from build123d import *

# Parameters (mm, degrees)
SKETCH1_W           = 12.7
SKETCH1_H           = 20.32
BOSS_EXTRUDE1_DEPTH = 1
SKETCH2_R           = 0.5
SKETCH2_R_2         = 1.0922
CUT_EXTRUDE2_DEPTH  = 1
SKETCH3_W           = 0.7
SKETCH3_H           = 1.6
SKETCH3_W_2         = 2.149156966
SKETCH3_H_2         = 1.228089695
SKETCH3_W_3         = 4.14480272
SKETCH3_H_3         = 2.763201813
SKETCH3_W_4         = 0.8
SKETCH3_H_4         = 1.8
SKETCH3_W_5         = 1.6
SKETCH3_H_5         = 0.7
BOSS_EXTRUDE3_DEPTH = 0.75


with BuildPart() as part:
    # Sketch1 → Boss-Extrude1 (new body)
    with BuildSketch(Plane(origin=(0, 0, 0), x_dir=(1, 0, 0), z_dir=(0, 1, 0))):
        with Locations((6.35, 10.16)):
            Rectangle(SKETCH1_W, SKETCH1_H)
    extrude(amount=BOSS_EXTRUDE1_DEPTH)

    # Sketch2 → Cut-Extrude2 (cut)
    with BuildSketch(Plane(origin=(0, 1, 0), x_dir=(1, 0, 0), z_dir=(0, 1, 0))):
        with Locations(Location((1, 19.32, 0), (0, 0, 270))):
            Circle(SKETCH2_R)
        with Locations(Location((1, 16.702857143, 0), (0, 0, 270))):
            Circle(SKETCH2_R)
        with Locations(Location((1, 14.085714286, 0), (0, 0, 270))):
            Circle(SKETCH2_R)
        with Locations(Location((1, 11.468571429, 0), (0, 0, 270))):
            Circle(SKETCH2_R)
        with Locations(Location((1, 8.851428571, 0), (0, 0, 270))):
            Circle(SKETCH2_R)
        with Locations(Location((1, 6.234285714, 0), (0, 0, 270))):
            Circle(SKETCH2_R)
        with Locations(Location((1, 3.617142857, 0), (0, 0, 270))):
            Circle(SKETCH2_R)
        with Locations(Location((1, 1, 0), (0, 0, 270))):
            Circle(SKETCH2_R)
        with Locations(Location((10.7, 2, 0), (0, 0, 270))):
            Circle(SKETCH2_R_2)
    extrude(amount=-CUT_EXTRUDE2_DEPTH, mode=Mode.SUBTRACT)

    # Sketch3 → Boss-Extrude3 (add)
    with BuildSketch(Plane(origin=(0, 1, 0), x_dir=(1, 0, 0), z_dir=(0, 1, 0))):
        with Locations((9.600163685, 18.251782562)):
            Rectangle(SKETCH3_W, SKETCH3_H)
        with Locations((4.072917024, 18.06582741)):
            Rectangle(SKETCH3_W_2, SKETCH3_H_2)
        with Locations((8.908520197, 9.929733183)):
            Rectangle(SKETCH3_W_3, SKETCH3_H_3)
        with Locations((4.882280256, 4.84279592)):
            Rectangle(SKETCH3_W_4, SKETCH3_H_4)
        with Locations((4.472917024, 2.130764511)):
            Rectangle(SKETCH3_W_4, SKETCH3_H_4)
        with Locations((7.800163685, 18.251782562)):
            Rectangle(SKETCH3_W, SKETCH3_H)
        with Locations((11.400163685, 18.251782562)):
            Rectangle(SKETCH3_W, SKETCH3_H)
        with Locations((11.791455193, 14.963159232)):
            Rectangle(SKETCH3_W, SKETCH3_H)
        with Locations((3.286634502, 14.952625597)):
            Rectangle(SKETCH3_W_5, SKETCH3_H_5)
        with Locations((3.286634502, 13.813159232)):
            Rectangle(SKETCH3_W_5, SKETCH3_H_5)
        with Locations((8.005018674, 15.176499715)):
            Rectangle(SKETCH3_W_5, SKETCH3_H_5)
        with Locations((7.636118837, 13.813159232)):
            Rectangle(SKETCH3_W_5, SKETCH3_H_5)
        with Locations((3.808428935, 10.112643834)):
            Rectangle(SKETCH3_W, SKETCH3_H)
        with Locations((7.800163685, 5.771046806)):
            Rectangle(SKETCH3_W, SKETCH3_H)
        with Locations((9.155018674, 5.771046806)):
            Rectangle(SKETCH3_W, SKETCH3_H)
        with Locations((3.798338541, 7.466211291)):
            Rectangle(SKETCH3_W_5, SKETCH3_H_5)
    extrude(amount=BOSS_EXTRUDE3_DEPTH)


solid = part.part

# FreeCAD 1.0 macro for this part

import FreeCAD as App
import Part
import Sketcher
from FreeCAD import Vector

doc = App.newDocument("Part")
body = doc.addObject("PartDesign::Body", "Body")

# Sketch on XZ plane
sketch1 = doc.addObject("Sketcher::SketchObject", "Sketch")
body.addObject(sketch1)
sketch1.AttachmentSupport = (doc.XZ_Plane, [""])
sketch1.MapMode = "FlatFace"
sketch1.addGeometry([
    Part.LineSegment(Vector(0, -20.32, 0), Vector(0, 0, 0)),
    Part.LineSegment(Vector(0, 0, 0), Vector(12.7, 0, 0)),
    Part.LineSegment(Vector(12.7, 0, 0), Vector(12.7, -20.32, 0)),
    Part.LineSegment(Vector(12.7, -20.32, 0), Vector(0, -20.32, 0)),
], False)
sketch1.addConstraint([
    Sketcher.Constraint("Coincident", 0, 2, 1, 1),
    Sketcher.Constraint("Coincident", 1, 2, 2, 1),
    Sketcher.Constraint("Coincident", 2, 2, 3, 1),
    Sketcher.Constraint("Coincident", 3, 2, 0, 1),
    Sketcher.Constraint("Vertical", 0),
    Sketcher.Constraint("Horizontal", 1),
    Sketcher.Constraint("Vertical", 2),
    Sketcher.Constraint("Horizontal", 3),
    Sketcher.Constraint("Coincident", 0, 2, -1, 1),
    Sketcher.Constraint("DistanceX", 1, 1, 1, 2, 12.7),
    Sketcher.Constraint("DistanceY", 0, 1, 0, 2, 20.32),
])
pad1 = doc.addObject("PartDesign::Pad", "Pad")
body.addObject(pad1)
pad1.Profile = sketch1
pad1.Length = 1
pad1.Reversed = True

# Sketch on XZ plane
sketch2 = doc.addObject("Sketcher::SketchObject", "Sketch001")
body.addObject(sketch2)
sketch2.AttachmentSupport = (doc.XZ_Plane, [""])
sketch2.MapMode = "FlatFace"
sketch2.AttachmentOffset = App.Placement(Vector(0, 0, -1), App.Rotation())
sketch2.addGeometry([
    Part.Circle(Vector(1, -19.32, 0), Vector(0, 0, 1), 0.5),  # 0
    Part.Circle(Vector(1, -16.702857, 0), Vector(0, 0, 1), 0.5),  # 1
    Part.Circle(Vector(1, -14.085714, 0), Vector(0, 0, 1), 0.5),  # 2
    Part.Circle(Vector(1, -11.468571, 0), Vector(0, 0, 1), 0.5),  # 3
    Part.Circle(Vector(1, -8.851429, 0), Vector(0, 0, 1), 0.5),  # 4
    Part.Circle(Vector(1, -6.234286, 0), Vector(0, 0, 1), 0.5),  # 5
    Part.Circle(Vector(1, -3.617143, 0), Vector(0, 0, 1), 0.5),  # 6
    Part.Circle(Vector(1, -1, 0), Vector(0, 0, 1), 0.5),  # 7
    Part.Circle(Vector(10.7, -2, 0), Vector(0, 0, 1), 1.0922),  # 8
], False)
sketch2.addConstraint([
    Sketcher.Constraint("Equal", 0, 1),
    Sketcher.Constraint("Equal", 1, 2),
    Sketcher.Constraint("Equal", 2, 3),
    Sketcher.Constraint("Equal", 3, 4),
    Sketcher.Constraint("Equal", 4, 5),
    Sketcher.Constraint("Equal", 5, 6),
    Sketcher.Constraint("Equal", 6, 7),
    Sketcher.Constraint("Vertical", 0, 3, 1, 3),
    Sketcher.Constraint("Vertical", 1, 3, 2, 3),
    Sketcher.Constraint("Vertical", 2, 3, 3, 3),
    Sketcher.Constraint("Vertical", 3, 3, 4, 3),
    Sketcher.Constraint("Vertical", 4, 3, 5, 3),
    Sketcher.Constraint("Vertical", 5, 3, 6, 3),
    Sketcher.Constraint("Vertical", 6, 3, 7, 3),
    Sketcher.Constraint("Diameter", 0, 1.0),
    Sketcher.Constraint("DistanceX", -1, 1, 0, 3, 1.0),
    Sketcher.Constraint("DistanceY", 7, 3, -1, 1, 1.0),
    Sketcher.Constraint("DistanceY", 8, 3, -1, 1, 2.0),
    Sketcher.Constraint("Diameter", 8, 2.1844),
    Sketcher.Constraint("DistanceX", -1, 1, 8, 3, 10.7),
    Sketcher.Constraint("DistanceY", 0, 3, -1, 1, 19.32),
    Sketcher.Constraint("DistanceY", 3, 3, -1, 1, 11.468571),
    Sketcher.Constraint("DistanceY", 4, 3, -1, 1, 8.851429),
    Sketcher.Constraint("DistanceY", 1, 3, 4, 3, 7.851429),
    Sketcher.Constraint("DistanceY", 2, 3, 5, 3, 7.851429),
    Sketcher.Constraint("DistanceY", 1, 3, 5, 3, 10.468571),
    Sketcher.Constraint("DistanceY", 3, 3, 6, 3, 7.851429),
])
pocket1 = doc.addObject("PartDesign::Pocket", "Pocket")
body.addObject(pocket1)
pocket1.Profile = sketch2
pocket1.Length = 1
pocket1.Reversed = True

# Sketch on XZ plane
sketch3 = doc.addObject("Sketcher::SketchObject", "Sketch002")
body.addObject(sketch3)
sketch3.AttachmentSupport = (doc.XZ_Plane, [""])
sketch3.MapMode = "FlatFace"
sketch3.AttachmentOffset = App.Placement(Vector(0, 0, -1), App.Rotation())
sketch3.addGeometry([
    Part.LineSegment(Vector(9.250164, -19.051783, 0), Vector(9.250164, -17.451783, 0)),  # 0
    Part.LineSegment(Vector(9.250164, -17.451783, 0), Vector(9.950164, -17.451783, 0)),  # 1
    Part.LineSegment(Vector(9.950164, -17.451783, 0), Vector(9.950164, -19.051783, 0)),  # 2
    Part.LineSegment(Vector(9.950164, -19.051783, 0), Vector(9.250164, -19.051783, 0)),  # 3
    Part.LineSegment(Vector(2.998339, -18.679872, 0), Vector(2.998339, -17.451783, 0)),  # 4
    Part.LineSegment(Vector(2.998339, -17.451783, 0), Vector(5.147496, -17.451783, 0)),  # 5
    Part.LineSegment(Vector(5.147496, -17.451783, 0), Vector(5.147496, -18.679872, 0)),  # 6
    Part.LineSegment(Vector(5.147496, -18.679872, 0), Vector(2.998339, -18.679872, 0)),  # 7
    Part.LineSegment(Vector(6.836119, -11.311334, 0), Vector(6.836119, -8.548132, 0)),  # 8
    Part.LineSegment(Vector(6.836119, -8.548132, 0), Vector(10.980922, -8.548132, 0)),  # 9
    Part.LineSegment(Vector(10.980922, -8.548132, 0), Vector(10.980922, -11.311334, 0)),  # 10
    Part.LineSegment(Vector(10.980922, -11.311334, 0), Vector(6.836119, -11.311334, 0)),  # 11
    Part.LineSegment(Vector(4.48228, -5.742796, 0), Vector(4.48228, -3.942796, 0)),  # 12
    Part.LineSegment(Vector(4.48228, -3.942796, 0), Vector(5.28228, -3.942796, 0)),  # 13
    Part.LineSegment(Vector(5.28228, -3.942796, 0), Vector(5.28228, -5.742796, 0)),  # 14
    Part.LineSegment(Vector(5.28228, -5.742796, 0), Vector(4.48228, -5.742796, 0)),  # 15
    Part.LineSegment(Vector(4.072917, -3.030765, 0), Vector(4.072917, -1.230765, 0)),  # 16
    Part.LineSegment(Vector(4.072917, -1.230765, 0), Vector(4.872917, -1.230765, 0)),  # 17
    Part.LineSegment(Vector(4.872917, -1.230765, 0), Vector(4.872917, -3.030765, 0)),  # 18
    Part.LineSegment(Vector(4.872917, -3.030765, 0), Vector(4.072917, -3.030765, 0)),  # 19
    Part.LineSegment(Vector(7.450164, -19.051783, 0), Vector(7.450164, -17.451783, 0)),  # 20
    Part.LineSegment(Vector(7.450164, -17.451783, 0), Vector(8.150164, -17.451783, 0)),  # 21
    Part.LineSegment(Vector(8.150164, -17.451783, 0), Vector(8.150164, -19.051783, 0)),  # 22
    Part.LineSegment(Vector(8.150164, -19.051783, 0), Vector(7.450164, -19.051783, 0)),  # 23
    Part.LineSegment(Vector(11.050164, -19.051783, 0), Vector(11.050164, -17.451783, 0)),  # 24
    Part.LineSegment(Vector(11.050164, -17.451783, 0), Vector(11.750164, -17.451783, 0)),  # 25
    Part.LineSegment(Vector(11.750164, -17.451783, 0), Vector(11.750164, -19.051783, 0)),  # 26
    Part.LineSegment(Vector(11.750164, -19.051783, 0), Vector(11.050164, -19.051783, 0)),  # 27
    Part.LineSegment(Vector(11.441455, -15.763159, 0), Vector(11.441455, -14.163159, 0)),  # 28
    Part.LineSegment(Vector(11.441455, -14.163159, 0), Vector(12.141455, -14.163159, 0)),  # 29
    Part.LineSegment(Vector(12.141455, -14.163159, 0), Vector(12.141455, -15.763159, 0)),  # 30
    Part.LineSegment(Vector(12.141455, -15.763159, 0), Vector(11.441455, -15.763159, 0)),  # 31
    Part.LineSegment(Vector(2.486635, -15.302626, 0), Vector(2.486635, -14.602626, 0)),  # 32
    Part.LineSegment(Vector(2.486635, -14.602626, 0), Vector(4.086635, -14.602626, 0)),  # 33
    Part.LineSegment(Vector(4.086635, -14.602626, 0), Vector(4.086635, -15.302626, 0)),  # 34
    Part.LineSegment(Vector(4.086635, -15.302626, 0), Vector(2.486635, -15.302626, 0)),  # 35
    Part.LineSegment(Vector(2.486635, -14.163159, 0), Vector(2.486635, -13.463159, 0)),  # 36
    Part.LineSegment(Vector(2.486635, -13.463159, 0), Vector(4.086635, -13.463159, 0)),  # 37
    Part.LineSegment(Vector(4.086635, -13.463159, 0), Vector(4.086635, -14.163159, 0)),  # 38
    Part.LineSegment(Vector(4.086635, -14.163159, 0), Vector(2.486635, -14.163159, 0)),  # 39
    Part.LineSegment(Vector(7.205019, -15.5265, 0), Vector(7.205019, -14.8265, 0)),  # 40
    Part.LineSegment(Vector(7.205019, -14.8265, 0), Vector(8.805019, -14.8265, 0)),  # 41
    Part.LineSegment(Vector(8.805019, -14.8265, 0), Vector(8.805019, -15.5265, 0)),  # 42
    Part.LineSegment(Vector(8.805019, -15.5265, 0), Vector(7.205019, -15.5265, 0)),  # 43
    Part.LineSegment(Vector(6.836119, -14.163159, 0), Vector(6.836119, -13.463159, 0)),  # 44
    Part.LineSegment(Vector(6.836119, -13.463159, 0), Vector(8.436119, -13.463159, 0)),  # 45
    Part.LineSegment(Vector(8.436119, -13.463159, 0), Vector(8.436119, -14.163159, 0)),  # 46
    Part.LineSegment(Vector(8.436119, -14.163159, 0), Vector(6.836119, -14.163159, 0)),  # 47
    Part.LineSegment(Vector(3.458429, -10.912644, 0), Vector(3.458429, -9.312644, 0)),  # 48
    Part.LineSegment(Vector(3.458429, -9.312644, 0), Vector(4.158429, -9.312644, 0)),  # 49
    Part.LineSegment(Vector(4.158429, -9.312644, 0), Vector(4.158429, -10.912644, 0)),  # 50
    Part.LineSegment(Vector(4.158429, -10.912644, 0), Vector(3.458429, -10.912644, 0)),  # 51
    Part.LineSegment(Vector(7.450164, -6.571047, 0), Vector(7.450164, -4.971047, 0)),  # 52
    Part.LineSegment(Vector(7.450164, -4.971047, 0), Vector(8.150164, -4.971047, 0)),  # 53
    Part.LineSegment(Vector(8.150164, -4.971047, 0), Vector(8.150164, -6.571047, 0)),  # 54
    Part.LineSegment(Vector(8.150164, -6.571047, 0), Vector(7.450164, -6.571047, 0)),  # 55
    Part.LineSegment(Vector(8.805019, -6.571047, 0), Vector(8.805019, -4.971047, 0)),  # 56
    Part.LineSegment(Vector(8.805019, -4.971047, 0), Vector(9.505019, -4.971047, 0)),  # 57
    Part.LineSegment(Vector(9.505019, -4.971047, 0), Vector(9.505019, -6.571047, 0)),  # 58
    Part.LineSegment(Vector(9.505019, -6.571047, 0), Vector(8.805019, -6.571047, 0)),  # 59
    Part.LineSegment(Vector(2.998339, -7.816211, 0), Vector(2.998339, -7.116211, 0)),  # 60
    Part.LineSegment(Vector(2.998339, -7.116211, 0), Vector(4.598339, -7.116211, 0)),  # 61
    Part.LineSegment(Vector(4.598339, -7.116211, 0), Vector(4.598339, -7.816211, 0)),  # 62
    Part.LineSegment(Vector(4.598339, -7.816211, 0), Vector(2.998339, -7.816211, 0)),  # 63
], False)
sketch3.addConstraint([
    Sketcher.Constraint("Coincident", 0, 2, 1, 1),
    Sketcher.Constraint("Coincident", 1, 2, 2, 1),
    Sketcher.Constraint("Coincident", 2, 2, 3, 1),
    Sketcher.Constraint("Coincident", 3, 2, 0, 1),
    Sketcher.Constraint("Coincident", 4, 2, 5, 1),
    Sketcher.Constraint("Coincident", 5, 2, 6, 1),
    Sketcher.Constraint("Coincident", 6, 2, 7, 1),
    Sketcher.Constraint("Coincident", 7, 2, 4, 1),
    Sketcher.Constraint("Coincident", 8, 2, 9, 1),
    Sketcher.Constraint("Coincident", 9, 2, 10, 1),
    Sketcher.Constraint("Coincident", 10, 2, 11, 1),
    Sketcher.Constraint("Coincident", 11, 2, 8, 1),
    Sketcher.Constraint("Coincident", 12, 2, 13, 1),
    Sketcher.Constraint("Coincident", 13, 2, 14, 1),
    Sketcher.Constraint("Coincident", 14, 2, 15, 1),
    Sketcher.Constraint("Coincident", 15, 2, 12, 1),
    Sketcher.Constraint("Coincident", 16, 2, 17, 1),
    Sketcher.Constraint("Coincident", 17, 2, 18, 1),
    Sketcher.Constraint("Coincident", 18, 2, 19, 1),
    Sketcher.Constraint("Coincident", 19, 2, 16, 1),
    Sketcher.Constraint("Coincident", 20, 2, 21, 1),
    Sketcher.Constraint("Coincident", 21, 2, 22, 1),
    Sketcher.Constraint("Coincident", 22, 2, 23, 1),
    Sketcher.Constraint("Coincident", 23, 2, 20, 1),
    Sketcher.Constraint("Coincident", 24, 2, 25, 1),
    Sketcher.Constraint("Coincident", 25, 2, 26, 1),
    Sketcher.Constraint("Coincident", 26, 2, 27, 1),
    Sketcher.Constraint("Coincident", 27, 2, 24, 1),
    Sketcher.Constraint("Coincident", 28, 2, 29, 1),
    Sketcher.Constraint("Coincident", 29, 2, 30, 1),
    Sketcher.Constraint("Coincident", 30, 2, 31, 1),
    Sketcher.Constraint("Coincident", 31, 2, 28, 1),
    Sketcher.Constraint("Coincident", 32, 2, 33, 1),
    Sketcher.Constraint("Coincident", 33, 2, 34, 1),
    Sketcher.Constraint("Coincident", 34, 2, 35, 1),
    Sketcher.Constraint("Coincident", 35, 2, 32, 1),
    Sketcher.Constraint("Coincident", 36, 2, 37, 1),
    Sketcher.Constraint("Coincident", 37, 2, 38, 1),
    Sketcher.Constraint("Coincident", 38, 2, 39, 1),
    Sketcher.Constraint("Coincident", 39, 2, 36, 1),
    Sketcher.Constraint("Coincident", 40, 2, 41, 1),
    Sketcher.Constraint("Coincident", 41, 2, 42, 1),
    Sketcher.Constraint("Coincident", 42, 2, 43, 1),
    Sketcher.Constraint("Coincident", 43, 2, 40, 1),
    Sketcher.Constraint("Coincident", 44, 2, 45, 1),
    Sketcher.Constraint("Coincident", 45, 2, 46, 1),
    Sketcher.Constraint("Coincident", 46, 2, 47, 1),
    Sketcher.Constraint("Coincident", 47, 2, 44, 1),
    Sketcher.Constraint("Coincident", 48, 2, 49, 1),
    Sketcher.Constraint("Coincident", 49, 2, 50, 1),
    Sketcher.Constraint("Coincident", 50, 2, 51, 1),
    Sketcher.Constraint("Coincident", 51, 2, 48, 1),
    Sketcher.Constraint("Coincident", 52, 2, 53, 1),
    Sketcher.Constraint("Coincident", 53, 2, 54, 1),
    Sketcher.Constraint("Coincident", 54, 2, 55, 1),
    Sketcher.Constraint("Coincident", 55, 2, 52, 1),
    Sketcher.Constraint("Coincident", 56, 2, 57, 1),
    Sketcher.Constraint("Coincident", 57, 2, 58, 1),
    Sketcher.Constraint("Coincident", 58, 2, 59, 1),
    Sketcher.Constraint("Coincident", 59, 2, 56, 1),
    Sketcher.Constraint("Coincident", 60, 2, 61, 1),
    Sketcher.Constraint("Coincident", 61, 2, 62, 1),
    Sketcher.Constraint("Coincident", 62, 2, 63, 1),
    Sketcher.Constraint("Coincident", 63, 2, 60, 1),
    Sketcher.Constraint("Vertical", 0),
    Sketcher.Constraint("Horizontal", 1),
    Sketcher.Constraint("Vertical", 2),
    Sketcher.Constraint("Horizontal", 3),
    Sketcher.Constraint("Vertical", 4),
    Sketcher.Constraint("Horizontal", 5),
    Sketcher.Constraint("Vertical", 6),
    Sketcher.Constraint("Horizontal", 7),
    Sketcher.Constraint("Vertical", 8),
    Sketcher.Constraint("Horizontal", 9),
    Sketcher.Constraint("Vertical", 10),
    Sketcher.Constraint("Horizontal", 11),
    Sketcher.Constraint("Vertical", 12),
    Sketcher.Constraint("Horizontal", 13),
    Sketcher.Constraint("Vertical", 14),
    Sketcher.Constraint("Horizontal", 15),
    Sketcher.Constraint("Vertical", 16),
    Sketcher.Constraint("Horizontal", 17),
    Sketcher.Constraint("Vertical", 18),
    Sketcher.Constraint("Horizontal", 19),
    Sketcher.Constraint("Vertical", 20),
    Sketcher.Constraint("Horizontal", 21),
    Sketcher.Constraint("Vertical", 22),
    Sketcher.Constraint("Horizontal", 23),
    Sketcher.Constraint("Vertical", 24),
    Sketcher.Constraint("Horizontal", 25),
    Sketcher.Constraint("Vertical", 26),
    Sketcher.Constraint("Horizontal", 27),
    Sketcher.Constraint("Vertical", 28),
    Sketcher.Constraint("Horizontal", 29),
    Sketcher.Constraint("Vertical", 30),
    Sketcher.Constraint("Horizontal", 31),
    Sketcher.Constraint("Vertical", 32),
    Sketcher.Constraint("Horizontal", 33),
    Sketcher.Constraint("Vertical", 34),
    Sketcher.Constraint("Horizontal", 35),
    Sketcher.Constraint("Vertical", 36),
    Sketcher.Constraint("Horizontal", 37),
    Sketcher.Constraint("Vertical", 38),
    Sketcher.Constraint("Horizontal", 39),
    Sketcher.Constraint("Vertical", 40),
    Sketcher.Constraint("Horizontal", 41),
    Sketcher.Constraint("Vertical", 42),
    Sketcher.Constraint("Horizontal", 43),
    Sketcher.Constraint("Vertical", 44),
    Sketcher.Constraint("Horizontal", 45),
    Sketcher.Constraint("Vertical", 46),
    Sketcher.Constraint("Horizontal", 47),
    Sketcher.Constraint("Vertical", 48),
    Sketcher.Constraint("Horizontal", 49),
    Sketcher.Constraint("Vertical", 50),
    Sketcher.Constraint("Horizontal", 51),
    Sketcher.Constraint("Vertical", 52),
    Sketcher.Constraint("Horizontal", 53),
    Sketcher.Constraint("Vertical", 54),
    Sketcher.Constraint("Horizontal", 55),
    Sketcher.Constraint("Vertical", 56),
    Sketcher.Constraint("Horizontal", 57),
    Sketcher.Constraint("Vertical", 58),
    Sketcher.Constraint("Horizontal", 59),
    Sketcher.Constraint("Vertical", 60),
    Sketcher.Constraint("Horizontal", 61),
    Sketcher.Constraint("Vertical", 62),
    Sketcher.Constraint("Horizontal", 63),
    Sketcher.Constraint("Horizontal", 1, 2, 4, 2),
    Sketcher.Constraint("Horizontal", 5, 2, 20, 2),
    Sketcher.Constraint("Horizontal", 3, 2, 22, 2),
    Sketcher.Constraint("Horizontal", 21, 2, 24, 2),
    Sketcher.Constraint("Horizontal", 23, 2, 26, 2),
    Sketcher.Constraint("Horizontal", 29, 2, 38, 2),
    Sketcher.Constraint("Horizontal", 37, 2, 44, 2),
    Sketcher.Constraint("Horizontal", 39, 2, 46, 2),
    Sketcher.Constraint("Horizontal", 53, 2, 56, 2),
    Sketcher.Constraint("Horizontal", 55, 2, 58, 2),
    Sketcher.Constraint("Vertical", 35, 2, 36, 2),
    Sketcher.Constraint("Vertical", 34, 2, 37, 2),
    Sketcher.Constraint("Vertical", 11, 2, 44, 2),
    Sketcher.Constraint("Vertical", 23, 2, 52, 2),
    Sketcher.Constraint("Vertical", 22, 2, 53, 2),
    Sketcher.Constraint("Vertical", 42, 2, 56, 2),
    Sketcher.Constraint("Vertical", 7, 2, 60, 2),
    Sketcher.Constraint("Equal", 15, 17),
    Sketcher.Constraint("Equal", 3, 21),
    Sketcher.Constraint("Equal", 23, 25),
    Sketcher.Constraint("Equal", 27, 29),
    Sketcher.Constraint("Equal", 39, 41),
    Sketcher.Constraint("Equal", 43, 45),
    Sketcher.Constraint("Equal", 31, 49),
    Sketcher.Constraint("Equal", 55, 57),
    Sketcher.Constraint("Equal", 47, 61),
    Sketcher.Constraint("Equal", 63, 0),
    Sketcher.Constraint("Equal", 14, 16),
    Sketcher.Constraint("Equal", 26, 28),
    Sketcher.Constraint("Equal", 59, 32),
    Sketcher.Constraint("Equal", 34, 36),
    Sketcher.Constraint("Equal", 38, 40),
    Sketcher.Constraint("Equal", 30, 48),
    Sketcher.Constraint("Equal", 50, 52),
    Sketcher.Constraint("Equal", 46, 60),
    Sketcher.Constraint("DistanceX", 1, 1, 1, 2, 0.7),
    Sketcher.Constraint("DistanceX", 13, 1, 13, 2, 0.8),
    Sketcher.Constraint("DistanceX", 33, 1, 33, 2, 1.6),
    Sketcher.Constraint("DistanceY", 12, 1, 12, 2, 1.8),
    Sketcher.Constraint("DistanceY", 8, 1, 8, 2, 2.763202),
    Sketcher.Constraint("DistanceY", 4, 1, 4, 2, 1.22809),
    Sketcher.Constraint("DistanceY", 40, 2, -1, 1, 14.8265),
    Sketcher.Constraint("DistanceX", 5, 1, 5, 2, 2.149157),
    Sketcher.Constraint("DistanceX", 9, 1, 9, 2, 4.144803),
    Sketcher.Constraint("DistanceX", -1, 1, 4, 2, 2.998339),
    Sketcher.Constraint("DistanceX", -1, 1, 8, 2, 6.836119),
    Sketcher.Constraint("DistanceX", -1, 1, 12, 2, 4.48228),
    Sketcher.Constraint("DistanceY", 28, 2, -1, 1, 14.163159),
    Sketcher.Constraint("DistanceX", -1, 1, 40, 2, 7.205019),
    Sketcher.Constraint("DistanceX", -1, 1, 48, 2, 3.458429),
    Sketcher.Constraint("DistanceY", 60, 2, -1, 1, 7.116211),
    Sketcher.Constraint("DistanceX", -1, 1, 0, 2, 9.250164),
    Sketcher.Constraint("DistanceY", 0, 2, -1, 1, 17.451783),
    Sketcher.Constraint("DistanceY", 8, 2, -1, 1, 8.548132),
    Sketcher.Constraint("DistanceY", 12, 2, -1, 1, 3.942796),
    Sketcher.Constraint("DistanceX", -1, 1, 16, 2, 4.072917),
    Sketcher.Constraint("DistanceY", 16, 2, -1, 1, 1.230765),
    Sketcher.Constraint("DistanceX", -1, 1, 20, 2, 7.450164),
    Sketcher.Constraint("DistanceX", -1, 1, 24, 2, 11.050164),
    Sketcher.Constraint("DistanceX", -1, 1, 28, 2, 11.441455),
    Sketcher.Constraint("DistanceX", -1, 1, 32, 2, 2.486635),
    Sketcher.Constraint("DistanceY", 32, 2, -1, 1, 14.602626),
    Sketcher.Constraint("DistanceY", 48, 2, -1, 1, 9.312644),
    Sketcher.Constraint("DistanceY", 52, 2, -1, 1, 4.971047),
])
pad2 = doc.addObject("PartDesign::Pad", "Pad001")
body.addObject(pad2)
pad2.Profile = sketch3
pad2.Length = 0.75
pad2.Reversed = True

doc.recompute()
